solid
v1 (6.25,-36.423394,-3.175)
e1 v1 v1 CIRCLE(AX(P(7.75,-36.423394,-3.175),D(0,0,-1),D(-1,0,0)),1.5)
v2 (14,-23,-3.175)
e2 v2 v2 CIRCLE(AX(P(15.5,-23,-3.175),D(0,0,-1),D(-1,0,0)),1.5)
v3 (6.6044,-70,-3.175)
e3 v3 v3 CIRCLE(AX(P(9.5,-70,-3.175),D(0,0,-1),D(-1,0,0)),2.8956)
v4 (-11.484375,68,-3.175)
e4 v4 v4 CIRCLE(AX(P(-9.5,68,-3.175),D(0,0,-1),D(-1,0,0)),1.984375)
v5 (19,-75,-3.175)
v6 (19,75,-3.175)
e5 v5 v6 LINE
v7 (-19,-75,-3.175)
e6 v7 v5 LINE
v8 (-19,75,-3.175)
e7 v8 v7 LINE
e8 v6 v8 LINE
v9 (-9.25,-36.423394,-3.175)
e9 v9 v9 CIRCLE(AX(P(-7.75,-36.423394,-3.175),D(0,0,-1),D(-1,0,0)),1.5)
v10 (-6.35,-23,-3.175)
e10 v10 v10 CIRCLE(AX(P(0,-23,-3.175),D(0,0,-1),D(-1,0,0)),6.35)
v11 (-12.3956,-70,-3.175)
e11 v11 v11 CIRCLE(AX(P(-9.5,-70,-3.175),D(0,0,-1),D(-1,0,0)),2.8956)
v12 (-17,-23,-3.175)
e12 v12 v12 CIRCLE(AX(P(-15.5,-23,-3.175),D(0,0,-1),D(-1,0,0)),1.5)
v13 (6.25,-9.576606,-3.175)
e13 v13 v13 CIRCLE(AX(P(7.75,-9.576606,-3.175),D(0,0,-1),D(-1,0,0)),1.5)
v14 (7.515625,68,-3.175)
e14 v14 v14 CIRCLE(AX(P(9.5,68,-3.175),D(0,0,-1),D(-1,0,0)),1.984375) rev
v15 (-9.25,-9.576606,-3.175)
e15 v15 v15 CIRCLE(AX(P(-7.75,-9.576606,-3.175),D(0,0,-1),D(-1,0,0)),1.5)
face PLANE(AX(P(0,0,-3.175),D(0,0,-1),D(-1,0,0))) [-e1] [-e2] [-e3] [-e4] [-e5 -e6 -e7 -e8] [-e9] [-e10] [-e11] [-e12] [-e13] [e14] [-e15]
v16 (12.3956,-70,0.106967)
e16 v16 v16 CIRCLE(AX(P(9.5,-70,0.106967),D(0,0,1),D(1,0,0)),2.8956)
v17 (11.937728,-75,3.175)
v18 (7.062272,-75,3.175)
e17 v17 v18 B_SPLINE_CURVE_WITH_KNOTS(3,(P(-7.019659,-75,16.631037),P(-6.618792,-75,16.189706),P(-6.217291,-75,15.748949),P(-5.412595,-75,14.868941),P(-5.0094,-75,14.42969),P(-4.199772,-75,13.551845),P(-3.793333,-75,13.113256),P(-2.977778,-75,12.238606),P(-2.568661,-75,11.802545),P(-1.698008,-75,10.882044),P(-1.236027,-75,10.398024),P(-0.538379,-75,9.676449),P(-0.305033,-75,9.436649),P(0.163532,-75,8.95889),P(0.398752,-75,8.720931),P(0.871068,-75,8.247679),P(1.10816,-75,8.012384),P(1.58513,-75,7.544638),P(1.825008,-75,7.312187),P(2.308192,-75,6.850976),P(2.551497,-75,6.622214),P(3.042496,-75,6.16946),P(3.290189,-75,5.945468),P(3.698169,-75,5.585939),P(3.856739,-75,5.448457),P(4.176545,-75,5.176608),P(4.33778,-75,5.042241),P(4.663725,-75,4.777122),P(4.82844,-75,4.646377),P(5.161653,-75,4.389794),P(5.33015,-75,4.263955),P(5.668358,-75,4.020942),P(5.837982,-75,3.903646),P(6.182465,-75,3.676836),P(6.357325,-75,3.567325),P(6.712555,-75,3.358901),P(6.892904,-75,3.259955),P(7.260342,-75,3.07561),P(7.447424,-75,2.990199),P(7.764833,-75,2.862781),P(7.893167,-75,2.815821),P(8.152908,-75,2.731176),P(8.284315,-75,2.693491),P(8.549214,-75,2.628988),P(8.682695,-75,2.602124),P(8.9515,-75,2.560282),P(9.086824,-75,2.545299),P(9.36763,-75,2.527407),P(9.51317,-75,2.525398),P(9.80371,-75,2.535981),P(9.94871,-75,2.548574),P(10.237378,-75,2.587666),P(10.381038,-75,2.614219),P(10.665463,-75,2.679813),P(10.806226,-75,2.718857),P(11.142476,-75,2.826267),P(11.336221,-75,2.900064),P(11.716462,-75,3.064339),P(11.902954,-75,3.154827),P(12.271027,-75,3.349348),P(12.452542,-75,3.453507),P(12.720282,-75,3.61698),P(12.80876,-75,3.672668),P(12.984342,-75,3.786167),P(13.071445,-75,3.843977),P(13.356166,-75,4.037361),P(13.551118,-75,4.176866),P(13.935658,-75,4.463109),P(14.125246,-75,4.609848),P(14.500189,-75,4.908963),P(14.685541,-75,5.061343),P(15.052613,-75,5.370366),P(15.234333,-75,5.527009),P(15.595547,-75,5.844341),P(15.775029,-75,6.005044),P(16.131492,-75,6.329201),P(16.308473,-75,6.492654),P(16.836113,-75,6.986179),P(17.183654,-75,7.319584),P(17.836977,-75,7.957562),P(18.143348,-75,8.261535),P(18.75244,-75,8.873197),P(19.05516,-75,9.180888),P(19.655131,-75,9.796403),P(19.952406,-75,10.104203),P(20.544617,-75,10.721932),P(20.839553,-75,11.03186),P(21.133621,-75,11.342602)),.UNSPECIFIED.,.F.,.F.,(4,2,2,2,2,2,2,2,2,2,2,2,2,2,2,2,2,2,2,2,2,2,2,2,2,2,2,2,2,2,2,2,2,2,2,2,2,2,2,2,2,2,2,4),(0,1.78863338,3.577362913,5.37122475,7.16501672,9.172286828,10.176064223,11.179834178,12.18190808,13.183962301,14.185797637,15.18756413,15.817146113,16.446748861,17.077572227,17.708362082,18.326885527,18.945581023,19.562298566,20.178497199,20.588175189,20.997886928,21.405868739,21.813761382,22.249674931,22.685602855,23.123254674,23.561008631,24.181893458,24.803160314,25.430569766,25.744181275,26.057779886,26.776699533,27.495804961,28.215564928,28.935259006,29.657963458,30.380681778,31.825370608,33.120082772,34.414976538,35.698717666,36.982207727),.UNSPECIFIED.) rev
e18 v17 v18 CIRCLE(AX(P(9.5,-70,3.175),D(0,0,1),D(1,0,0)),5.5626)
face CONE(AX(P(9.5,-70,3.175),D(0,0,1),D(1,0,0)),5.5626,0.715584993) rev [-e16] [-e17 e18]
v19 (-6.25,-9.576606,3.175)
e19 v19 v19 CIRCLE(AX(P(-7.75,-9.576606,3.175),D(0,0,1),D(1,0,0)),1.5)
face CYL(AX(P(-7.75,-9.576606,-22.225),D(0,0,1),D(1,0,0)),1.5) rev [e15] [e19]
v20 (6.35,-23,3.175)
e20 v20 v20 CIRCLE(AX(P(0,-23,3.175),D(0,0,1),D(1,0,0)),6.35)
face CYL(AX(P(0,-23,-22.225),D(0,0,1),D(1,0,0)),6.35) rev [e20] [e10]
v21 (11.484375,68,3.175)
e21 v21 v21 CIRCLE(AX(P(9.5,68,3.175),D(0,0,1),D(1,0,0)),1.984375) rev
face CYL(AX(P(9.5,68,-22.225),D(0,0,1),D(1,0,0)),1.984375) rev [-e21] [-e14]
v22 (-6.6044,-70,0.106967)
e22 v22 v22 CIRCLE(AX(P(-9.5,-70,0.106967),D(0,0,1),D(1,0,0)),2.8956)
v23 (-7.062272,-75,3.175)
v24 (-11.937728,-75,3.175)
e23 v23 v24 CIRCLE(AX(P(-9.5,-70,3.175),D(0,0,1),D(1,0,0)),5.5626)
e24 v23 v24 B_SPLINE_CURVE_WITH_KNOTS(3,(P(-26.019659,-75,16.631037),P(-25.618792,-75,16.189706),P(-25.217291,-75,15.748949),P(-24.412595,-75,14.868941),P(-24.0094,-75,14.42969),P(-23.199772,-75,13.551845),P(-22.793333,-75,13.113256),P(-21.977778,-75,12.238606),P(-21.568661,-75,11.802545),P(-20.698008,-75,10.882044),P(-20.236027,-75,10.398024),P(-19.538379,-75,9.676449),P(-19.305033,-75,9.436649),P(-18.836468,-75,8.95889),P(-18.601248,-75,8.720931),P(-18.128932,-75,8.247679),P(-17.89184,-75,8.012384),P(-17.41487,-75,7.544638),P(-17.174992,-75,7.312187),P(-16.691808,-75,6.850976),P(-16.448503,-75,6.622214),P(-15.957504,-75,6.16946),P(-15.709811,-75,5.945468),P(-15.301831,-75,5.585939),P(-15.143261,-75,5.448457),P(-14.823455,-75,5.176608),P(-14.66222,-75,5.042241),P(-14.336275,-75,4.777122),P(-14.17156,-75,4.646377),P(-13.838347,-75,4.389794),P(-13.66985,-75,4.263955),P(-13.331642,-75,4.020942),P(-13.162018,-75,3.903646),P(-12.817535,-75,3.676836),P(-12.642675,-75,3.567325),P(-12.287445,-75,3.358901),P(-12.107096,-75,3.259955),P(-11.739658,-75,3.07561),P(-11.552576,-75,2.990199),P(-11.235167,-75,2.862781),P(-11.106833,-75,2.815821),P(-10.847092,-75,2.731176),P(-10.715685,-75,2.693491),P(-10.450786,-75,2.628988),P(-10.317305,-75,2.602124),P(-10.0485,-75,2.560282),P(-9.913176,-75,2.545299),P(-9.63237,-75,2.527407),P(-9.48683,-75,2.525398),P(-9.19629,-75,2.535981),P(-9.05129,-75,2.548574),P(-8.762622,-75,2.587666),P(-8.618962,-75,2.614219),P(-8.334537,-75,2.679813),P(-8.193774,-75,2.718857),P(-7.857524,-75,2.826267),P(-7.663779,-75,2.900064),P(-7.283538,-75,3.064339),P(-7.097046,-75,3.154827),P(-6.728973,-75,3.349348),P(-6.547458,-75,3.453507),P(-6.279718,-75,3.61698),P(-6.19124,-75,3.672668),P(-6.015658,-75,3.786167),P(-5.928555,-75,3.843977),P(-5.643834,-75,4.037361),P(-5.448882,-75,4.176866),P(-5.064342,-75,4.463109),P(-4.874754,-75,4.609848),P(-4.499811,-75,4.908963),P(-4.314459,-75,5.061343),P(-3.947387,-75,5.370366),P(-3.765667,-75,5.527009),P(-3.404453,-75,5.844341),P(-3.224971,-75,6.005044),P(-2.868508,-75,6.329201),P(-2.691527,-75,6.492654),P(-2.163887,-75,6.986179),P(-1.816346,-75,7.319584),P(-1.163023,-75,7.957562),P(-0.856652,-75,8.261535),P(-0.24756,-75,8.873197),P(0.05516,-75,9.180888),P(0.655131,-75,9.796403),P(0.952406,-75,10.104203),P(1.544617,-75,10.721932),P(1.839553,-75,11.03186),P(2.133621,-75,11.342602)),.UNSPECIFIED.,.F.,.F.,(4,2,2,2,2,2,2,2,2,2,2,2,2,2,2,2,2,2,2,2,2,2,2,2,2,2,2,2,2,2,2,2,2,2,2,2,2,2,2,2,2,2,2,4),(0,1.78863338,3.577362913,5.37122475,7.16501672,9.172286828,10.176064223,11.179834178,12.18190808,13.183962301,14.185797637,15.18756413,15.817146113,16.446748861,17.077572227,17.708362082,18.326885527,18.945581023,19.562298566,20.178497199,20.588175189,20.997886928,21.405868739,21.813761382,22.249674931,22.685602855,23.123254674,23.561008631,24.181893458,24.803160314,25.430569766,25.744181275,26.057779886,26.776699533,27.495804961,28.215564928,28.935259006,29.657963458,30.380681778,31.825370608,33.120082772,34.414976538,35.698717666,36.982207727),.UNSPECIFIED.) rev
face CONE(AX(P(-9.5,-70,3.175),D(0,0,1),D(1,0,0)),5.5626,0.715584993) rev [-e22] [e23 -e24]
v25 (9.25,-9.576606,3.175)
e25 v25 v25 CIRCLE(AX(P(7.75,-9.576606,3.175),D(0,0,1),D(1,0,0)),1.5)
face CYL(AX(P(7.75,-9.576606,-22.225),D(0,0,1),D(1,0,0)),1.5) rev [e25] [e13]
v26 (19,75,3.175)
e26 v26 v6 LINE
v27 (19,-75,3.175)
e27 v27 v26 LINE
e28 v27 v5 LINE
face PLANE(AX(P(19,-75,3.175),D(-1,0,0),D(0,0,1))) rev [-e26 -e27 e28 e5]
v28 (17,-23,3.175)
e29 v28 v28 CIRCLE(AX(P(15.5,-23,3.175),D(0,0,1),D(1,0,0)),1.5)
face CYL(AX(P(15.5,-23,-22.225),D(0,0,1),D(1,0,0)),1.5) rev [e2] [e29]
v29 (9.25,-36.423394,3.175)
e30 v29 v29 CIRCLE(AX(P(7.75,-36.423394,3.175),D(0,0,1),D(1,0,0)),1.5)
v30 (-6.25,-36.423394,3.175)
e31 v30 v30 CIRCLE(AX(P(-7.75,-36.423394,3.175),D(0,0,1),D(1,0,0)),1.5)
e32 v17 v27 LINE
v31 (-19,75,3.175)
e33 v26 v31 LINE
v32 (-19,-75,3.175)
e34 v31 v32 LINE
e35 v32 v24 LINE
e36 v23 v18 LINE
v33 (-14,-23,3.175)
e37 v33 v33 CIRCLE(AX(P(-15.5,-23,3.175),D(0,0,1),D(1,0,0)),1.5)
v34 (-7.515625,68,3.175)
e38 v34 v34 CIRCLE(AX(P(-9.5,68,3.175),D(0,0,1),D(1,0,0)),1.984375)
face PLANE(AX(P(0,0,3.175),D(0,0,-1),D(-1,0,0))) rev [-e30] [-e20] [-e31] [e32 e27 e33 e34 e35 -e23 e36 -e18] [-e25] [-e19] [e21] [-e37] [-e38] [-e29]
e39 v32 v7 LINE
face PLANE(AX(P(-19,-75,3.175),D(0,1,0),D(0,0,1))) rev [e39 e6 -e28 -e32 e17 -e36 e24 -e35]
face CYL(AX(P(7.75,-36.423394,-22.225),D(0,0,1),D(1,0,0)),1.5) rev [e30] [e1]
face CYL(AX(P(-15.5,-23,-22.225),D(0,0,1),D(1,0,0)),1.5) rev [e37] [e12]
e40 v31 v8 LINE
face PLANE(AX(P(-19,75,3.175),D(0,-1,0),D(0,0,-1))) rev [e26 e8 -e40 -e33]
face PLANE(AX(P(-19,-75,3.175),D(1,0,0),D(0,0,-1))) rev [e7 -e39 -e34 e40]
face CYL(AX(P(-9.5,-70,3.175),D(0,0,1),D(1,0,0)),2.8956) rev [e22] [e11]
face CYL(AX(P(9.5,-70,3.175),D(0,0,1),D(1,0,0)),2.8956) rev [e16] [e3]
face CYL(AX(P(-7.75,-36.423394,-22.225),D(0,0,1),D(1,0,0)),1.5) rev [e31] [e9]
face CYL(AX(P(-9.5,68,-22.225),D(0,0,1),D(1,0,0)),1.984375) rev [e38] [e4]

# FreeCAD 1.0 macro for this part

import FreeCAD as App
import Part
import Sketcher
Q = App.Units.Quantity

doc = App.newDocument("Part")
body = doc.addObject("PartDesign::Body", "Body")

sketch1 = body.newObject("Sketcher::SketchObject", "Sketch")
sketch1.AttachmentSupport = (doc.getObject("XY_Plane"), [""])
sketch1.MapMode = "FlatFace"
sketch1.addGeometry([
    Part.LineSegment(App.Vector(-19, 75, 0), App.Vector(-19, -75, 0)),
    Part.LineSegment(App.Vector(-19, -75, 0), App.Vector(19, -75, 0)),
    Part.LineSegment(App.Vector(19, -75, 0), App.Vector(19, 75, 0)),
    Part.LineSegment(App.Vector(19, 75, 0), App.Vector(-19, 75, 0)),
], False)
sketch1.addConstraint([
    Sketcher.Constraint("Coincident", 0, 2, 1, 1),
    Sketcher.Constraint("Coincident", 1, 2, 2, 1),
    Sketcher.Constraint("Coincident", 2, 2, 3, 1),
    Sketcher.Constraint("Coincident", 3, 2, 0, 1),
    Sketcher.Constraint("Vertical", 0),
    Sketcher.Constraint("Horizontal", 1),
    Sketcher.Constraint("Vertical", 2),
    Sketcher.Constraint("Horizontal", 3),
    Sketcher.Constraint("Symmetric", 0, 2, 2, 2, -1, 1),
    Sketcher.Constraint("DistanceX", 1, 1, 1, 2, Q("38 mm")),
    Sketcher.Constraint("DistanceY", 0, 2, 0, 1, Q("150 mm")),
])
pad1 = body.newObject("PartDesign::Pad", "Pad")
pad1.Profile = sketch1
pad1.Length = Q("0.25 in")
pad1.Midplane = True

sketch2 = body.newObject("Sketcher::SketchObject", "Sketch001")
sketch2.AttachmentSupport = (doc.getObject("XY_Plane"), [""])
sketch2.MapMode = "FlatFace"
sketch2.AttachmentOffset = App.Placement(App.Vector(0, 0, 0.125 * 25.4), App.Rotation())
sketch2.addGeometry([
    Part.Circle(App.Vector(0, -23, 0), App.Vector(0, 0, 1), 6.3),
    Part.Circle(App.Vector(-15.5, -23, 0), App.Vector(0, 0, 1), 1.5),
    Part.Circle(App.Vector(-7.8, -9.6, 0), App.Vector(0, 0, 1), 1.5),
    Part.Circle(App.Vector(7.8, -9.6, 0), App.Vector(0, 0, 1), 1.5),
    Part.Circle(App.Vector(15.5, -23, 0), App.Vector(0, 0, 1), 1.5),
    Part.Circle(App.Vector(7.8, -36.4, 0), App.Vector(0, 0, 1), 1.5),
    Part.Circle(App.Vector(-7.8, -36.4, 0), App.Vector(0, 0, 1), 1.5),
], False)
sketch2.addConstraint([
    Sketcher.Constraint("Equal", 1, 2),
    Sketcher.Constraint("Equal", 2, 3),
    Sketcher.Constraint("Equal", 3, 4),
    Sketcher.Constraint("Equal", 4, 5),
    Sketcher.Constraint("Equal", 5, 6),
    Sketcher.Constraint("Symmetric", 2, 3, 3, 3, -2),
    Sketcher.Constraint("Symmetric", 1, 3, 4, 3, -2),
    Sketcher.Constraint("Symmetric", 5, 3, 6, 3, -2),
    Sketcher.Constraint("PointOnObject", 0, 3, -2),
    Sketcher.Constraint("Horizontal", 0, 3, 1, 3),
    Sketcher.Constraint("Vertical", 3, 3, 5, 3),
    Sketcher.Constraint("Diameter", 0, Q("0.5 in")),
    Sketcher.Constraint("Diameter", 1, Q("3 mm")),
    Sketcher.Constraint("DistanceY", 0, 3, -1, 1, Q("23 mm")),
    Sketcher.Constraint("DistanceX", 1, 3, -1, 1, Q("15.5 mm")),
    Sketcher.Constraint("DistanceX", 2, 3, -1, 1, Q("7.75 mm")),
    Sketcher.Constraint("DistanceY", 2, 3, -1, 1, Q("9.576606 mm")),
    Sketcher.Constraint("DistanceY", 5, 3, -1, 1, Q("36.423394 mm")),
])
pocket1 = body.newObject("PartDesign::Pocket", "Pocket")
pocket1.Profile = sketch2
pocket1.Length = Q("1 in")

sketch3 = body.newObject("Sketcher::SketchObject", "Sketch002")
sketch3.AttachmentSupport = (doc.getObject("XY_Plane"), [""])
sketch3.MapMode = "FlatFace"
sketch3.AttachmentOffset = App.Placement(App.Vector(0, 0, 0.125 * 25.4), App.Rotation())
sketch3.addGeometry([
    Part.Circle(App.Vector(-9.5, -70, 0), App.Vector(0, 0, 1), 2.9),
    Part.Circle(App.Vector(9.5, -70, 0), App.Vector(0, 0, 1), 2.9),
], False)
sketch3.addConstraint([
    Sketcher.Constraint("Equal", 0, 1),
    Sketcher.Constraint("Symmetric", 0, 3, 1, 3, -2),
    Sketcher.Constraint("Diameter", 0, Q("0.228 in")),
    Sketcher.Constraint("DistanceX", 0, 3, -1, 1, Q("9.5 mm")),
    Sketcher.Constraint("DistanceY", 0, 3, -1, 1, Q("70 mm")),
])
doc.recompute()
hole = body.newObject("PartDesign::Hole", "Hole")
hole.Profile = sketch3
hole.ThreadType = "None"
hole.Diameter = Q("0.228 in")
hole.DepthType = "Dimension"
hole.Depth = 20
hole.DrillPoint = "Angled"
hole.DrillPointAngle = 118
hole.HoleCutType = "Countersink"
hole.HoleCutDiameter = Q("0.438 in")
hole.HoleCutCountersinkAngle = 82

sketch4 = body.newObject("Sketcher::SketchObject", "Sketch003")
sketch4.AttachmentSupport = (doc.getObject("XY_Plane"), [""])
sketch4.MapMode = "FlatFace"
sketch4.AttachmentOffset = App.Placement(App.Vector(0, 0, 0.125 * 25.4), App.Rotation())
sketch4.addGeometry([
    Part.Circle(App.Vector(9.5, 68, 0), App.Vector(0, 0, 1), 2),
    Part.Circle(App.Vector(-9.5, 68, 0), App.Vector(0, 0, 1), 2),
], False)
sketch4.addConstraint([
    Sketcher.Constraint("Equal", 0, 1),
    Sketcher.Constraint("Symmetric", 0, 3, 1, 3, -2),
    Sketcher.Constraint("Diameter", 0, Q("0.15625 in")),
    Sketcher.Constraint("DistanceX", -1, 1, 0, 3, Q("9.5 mm")),
    Sketcher.Constraint("DistanceY", -1, 1, 0, 3, Q("68 mm")),
])
pocket2 = body.newObject("PartDesign::Pocket", "Pocket001")
pocket2.Profile = sketch4
pocket2.Length = Q("1 in")

doc.recompute()
